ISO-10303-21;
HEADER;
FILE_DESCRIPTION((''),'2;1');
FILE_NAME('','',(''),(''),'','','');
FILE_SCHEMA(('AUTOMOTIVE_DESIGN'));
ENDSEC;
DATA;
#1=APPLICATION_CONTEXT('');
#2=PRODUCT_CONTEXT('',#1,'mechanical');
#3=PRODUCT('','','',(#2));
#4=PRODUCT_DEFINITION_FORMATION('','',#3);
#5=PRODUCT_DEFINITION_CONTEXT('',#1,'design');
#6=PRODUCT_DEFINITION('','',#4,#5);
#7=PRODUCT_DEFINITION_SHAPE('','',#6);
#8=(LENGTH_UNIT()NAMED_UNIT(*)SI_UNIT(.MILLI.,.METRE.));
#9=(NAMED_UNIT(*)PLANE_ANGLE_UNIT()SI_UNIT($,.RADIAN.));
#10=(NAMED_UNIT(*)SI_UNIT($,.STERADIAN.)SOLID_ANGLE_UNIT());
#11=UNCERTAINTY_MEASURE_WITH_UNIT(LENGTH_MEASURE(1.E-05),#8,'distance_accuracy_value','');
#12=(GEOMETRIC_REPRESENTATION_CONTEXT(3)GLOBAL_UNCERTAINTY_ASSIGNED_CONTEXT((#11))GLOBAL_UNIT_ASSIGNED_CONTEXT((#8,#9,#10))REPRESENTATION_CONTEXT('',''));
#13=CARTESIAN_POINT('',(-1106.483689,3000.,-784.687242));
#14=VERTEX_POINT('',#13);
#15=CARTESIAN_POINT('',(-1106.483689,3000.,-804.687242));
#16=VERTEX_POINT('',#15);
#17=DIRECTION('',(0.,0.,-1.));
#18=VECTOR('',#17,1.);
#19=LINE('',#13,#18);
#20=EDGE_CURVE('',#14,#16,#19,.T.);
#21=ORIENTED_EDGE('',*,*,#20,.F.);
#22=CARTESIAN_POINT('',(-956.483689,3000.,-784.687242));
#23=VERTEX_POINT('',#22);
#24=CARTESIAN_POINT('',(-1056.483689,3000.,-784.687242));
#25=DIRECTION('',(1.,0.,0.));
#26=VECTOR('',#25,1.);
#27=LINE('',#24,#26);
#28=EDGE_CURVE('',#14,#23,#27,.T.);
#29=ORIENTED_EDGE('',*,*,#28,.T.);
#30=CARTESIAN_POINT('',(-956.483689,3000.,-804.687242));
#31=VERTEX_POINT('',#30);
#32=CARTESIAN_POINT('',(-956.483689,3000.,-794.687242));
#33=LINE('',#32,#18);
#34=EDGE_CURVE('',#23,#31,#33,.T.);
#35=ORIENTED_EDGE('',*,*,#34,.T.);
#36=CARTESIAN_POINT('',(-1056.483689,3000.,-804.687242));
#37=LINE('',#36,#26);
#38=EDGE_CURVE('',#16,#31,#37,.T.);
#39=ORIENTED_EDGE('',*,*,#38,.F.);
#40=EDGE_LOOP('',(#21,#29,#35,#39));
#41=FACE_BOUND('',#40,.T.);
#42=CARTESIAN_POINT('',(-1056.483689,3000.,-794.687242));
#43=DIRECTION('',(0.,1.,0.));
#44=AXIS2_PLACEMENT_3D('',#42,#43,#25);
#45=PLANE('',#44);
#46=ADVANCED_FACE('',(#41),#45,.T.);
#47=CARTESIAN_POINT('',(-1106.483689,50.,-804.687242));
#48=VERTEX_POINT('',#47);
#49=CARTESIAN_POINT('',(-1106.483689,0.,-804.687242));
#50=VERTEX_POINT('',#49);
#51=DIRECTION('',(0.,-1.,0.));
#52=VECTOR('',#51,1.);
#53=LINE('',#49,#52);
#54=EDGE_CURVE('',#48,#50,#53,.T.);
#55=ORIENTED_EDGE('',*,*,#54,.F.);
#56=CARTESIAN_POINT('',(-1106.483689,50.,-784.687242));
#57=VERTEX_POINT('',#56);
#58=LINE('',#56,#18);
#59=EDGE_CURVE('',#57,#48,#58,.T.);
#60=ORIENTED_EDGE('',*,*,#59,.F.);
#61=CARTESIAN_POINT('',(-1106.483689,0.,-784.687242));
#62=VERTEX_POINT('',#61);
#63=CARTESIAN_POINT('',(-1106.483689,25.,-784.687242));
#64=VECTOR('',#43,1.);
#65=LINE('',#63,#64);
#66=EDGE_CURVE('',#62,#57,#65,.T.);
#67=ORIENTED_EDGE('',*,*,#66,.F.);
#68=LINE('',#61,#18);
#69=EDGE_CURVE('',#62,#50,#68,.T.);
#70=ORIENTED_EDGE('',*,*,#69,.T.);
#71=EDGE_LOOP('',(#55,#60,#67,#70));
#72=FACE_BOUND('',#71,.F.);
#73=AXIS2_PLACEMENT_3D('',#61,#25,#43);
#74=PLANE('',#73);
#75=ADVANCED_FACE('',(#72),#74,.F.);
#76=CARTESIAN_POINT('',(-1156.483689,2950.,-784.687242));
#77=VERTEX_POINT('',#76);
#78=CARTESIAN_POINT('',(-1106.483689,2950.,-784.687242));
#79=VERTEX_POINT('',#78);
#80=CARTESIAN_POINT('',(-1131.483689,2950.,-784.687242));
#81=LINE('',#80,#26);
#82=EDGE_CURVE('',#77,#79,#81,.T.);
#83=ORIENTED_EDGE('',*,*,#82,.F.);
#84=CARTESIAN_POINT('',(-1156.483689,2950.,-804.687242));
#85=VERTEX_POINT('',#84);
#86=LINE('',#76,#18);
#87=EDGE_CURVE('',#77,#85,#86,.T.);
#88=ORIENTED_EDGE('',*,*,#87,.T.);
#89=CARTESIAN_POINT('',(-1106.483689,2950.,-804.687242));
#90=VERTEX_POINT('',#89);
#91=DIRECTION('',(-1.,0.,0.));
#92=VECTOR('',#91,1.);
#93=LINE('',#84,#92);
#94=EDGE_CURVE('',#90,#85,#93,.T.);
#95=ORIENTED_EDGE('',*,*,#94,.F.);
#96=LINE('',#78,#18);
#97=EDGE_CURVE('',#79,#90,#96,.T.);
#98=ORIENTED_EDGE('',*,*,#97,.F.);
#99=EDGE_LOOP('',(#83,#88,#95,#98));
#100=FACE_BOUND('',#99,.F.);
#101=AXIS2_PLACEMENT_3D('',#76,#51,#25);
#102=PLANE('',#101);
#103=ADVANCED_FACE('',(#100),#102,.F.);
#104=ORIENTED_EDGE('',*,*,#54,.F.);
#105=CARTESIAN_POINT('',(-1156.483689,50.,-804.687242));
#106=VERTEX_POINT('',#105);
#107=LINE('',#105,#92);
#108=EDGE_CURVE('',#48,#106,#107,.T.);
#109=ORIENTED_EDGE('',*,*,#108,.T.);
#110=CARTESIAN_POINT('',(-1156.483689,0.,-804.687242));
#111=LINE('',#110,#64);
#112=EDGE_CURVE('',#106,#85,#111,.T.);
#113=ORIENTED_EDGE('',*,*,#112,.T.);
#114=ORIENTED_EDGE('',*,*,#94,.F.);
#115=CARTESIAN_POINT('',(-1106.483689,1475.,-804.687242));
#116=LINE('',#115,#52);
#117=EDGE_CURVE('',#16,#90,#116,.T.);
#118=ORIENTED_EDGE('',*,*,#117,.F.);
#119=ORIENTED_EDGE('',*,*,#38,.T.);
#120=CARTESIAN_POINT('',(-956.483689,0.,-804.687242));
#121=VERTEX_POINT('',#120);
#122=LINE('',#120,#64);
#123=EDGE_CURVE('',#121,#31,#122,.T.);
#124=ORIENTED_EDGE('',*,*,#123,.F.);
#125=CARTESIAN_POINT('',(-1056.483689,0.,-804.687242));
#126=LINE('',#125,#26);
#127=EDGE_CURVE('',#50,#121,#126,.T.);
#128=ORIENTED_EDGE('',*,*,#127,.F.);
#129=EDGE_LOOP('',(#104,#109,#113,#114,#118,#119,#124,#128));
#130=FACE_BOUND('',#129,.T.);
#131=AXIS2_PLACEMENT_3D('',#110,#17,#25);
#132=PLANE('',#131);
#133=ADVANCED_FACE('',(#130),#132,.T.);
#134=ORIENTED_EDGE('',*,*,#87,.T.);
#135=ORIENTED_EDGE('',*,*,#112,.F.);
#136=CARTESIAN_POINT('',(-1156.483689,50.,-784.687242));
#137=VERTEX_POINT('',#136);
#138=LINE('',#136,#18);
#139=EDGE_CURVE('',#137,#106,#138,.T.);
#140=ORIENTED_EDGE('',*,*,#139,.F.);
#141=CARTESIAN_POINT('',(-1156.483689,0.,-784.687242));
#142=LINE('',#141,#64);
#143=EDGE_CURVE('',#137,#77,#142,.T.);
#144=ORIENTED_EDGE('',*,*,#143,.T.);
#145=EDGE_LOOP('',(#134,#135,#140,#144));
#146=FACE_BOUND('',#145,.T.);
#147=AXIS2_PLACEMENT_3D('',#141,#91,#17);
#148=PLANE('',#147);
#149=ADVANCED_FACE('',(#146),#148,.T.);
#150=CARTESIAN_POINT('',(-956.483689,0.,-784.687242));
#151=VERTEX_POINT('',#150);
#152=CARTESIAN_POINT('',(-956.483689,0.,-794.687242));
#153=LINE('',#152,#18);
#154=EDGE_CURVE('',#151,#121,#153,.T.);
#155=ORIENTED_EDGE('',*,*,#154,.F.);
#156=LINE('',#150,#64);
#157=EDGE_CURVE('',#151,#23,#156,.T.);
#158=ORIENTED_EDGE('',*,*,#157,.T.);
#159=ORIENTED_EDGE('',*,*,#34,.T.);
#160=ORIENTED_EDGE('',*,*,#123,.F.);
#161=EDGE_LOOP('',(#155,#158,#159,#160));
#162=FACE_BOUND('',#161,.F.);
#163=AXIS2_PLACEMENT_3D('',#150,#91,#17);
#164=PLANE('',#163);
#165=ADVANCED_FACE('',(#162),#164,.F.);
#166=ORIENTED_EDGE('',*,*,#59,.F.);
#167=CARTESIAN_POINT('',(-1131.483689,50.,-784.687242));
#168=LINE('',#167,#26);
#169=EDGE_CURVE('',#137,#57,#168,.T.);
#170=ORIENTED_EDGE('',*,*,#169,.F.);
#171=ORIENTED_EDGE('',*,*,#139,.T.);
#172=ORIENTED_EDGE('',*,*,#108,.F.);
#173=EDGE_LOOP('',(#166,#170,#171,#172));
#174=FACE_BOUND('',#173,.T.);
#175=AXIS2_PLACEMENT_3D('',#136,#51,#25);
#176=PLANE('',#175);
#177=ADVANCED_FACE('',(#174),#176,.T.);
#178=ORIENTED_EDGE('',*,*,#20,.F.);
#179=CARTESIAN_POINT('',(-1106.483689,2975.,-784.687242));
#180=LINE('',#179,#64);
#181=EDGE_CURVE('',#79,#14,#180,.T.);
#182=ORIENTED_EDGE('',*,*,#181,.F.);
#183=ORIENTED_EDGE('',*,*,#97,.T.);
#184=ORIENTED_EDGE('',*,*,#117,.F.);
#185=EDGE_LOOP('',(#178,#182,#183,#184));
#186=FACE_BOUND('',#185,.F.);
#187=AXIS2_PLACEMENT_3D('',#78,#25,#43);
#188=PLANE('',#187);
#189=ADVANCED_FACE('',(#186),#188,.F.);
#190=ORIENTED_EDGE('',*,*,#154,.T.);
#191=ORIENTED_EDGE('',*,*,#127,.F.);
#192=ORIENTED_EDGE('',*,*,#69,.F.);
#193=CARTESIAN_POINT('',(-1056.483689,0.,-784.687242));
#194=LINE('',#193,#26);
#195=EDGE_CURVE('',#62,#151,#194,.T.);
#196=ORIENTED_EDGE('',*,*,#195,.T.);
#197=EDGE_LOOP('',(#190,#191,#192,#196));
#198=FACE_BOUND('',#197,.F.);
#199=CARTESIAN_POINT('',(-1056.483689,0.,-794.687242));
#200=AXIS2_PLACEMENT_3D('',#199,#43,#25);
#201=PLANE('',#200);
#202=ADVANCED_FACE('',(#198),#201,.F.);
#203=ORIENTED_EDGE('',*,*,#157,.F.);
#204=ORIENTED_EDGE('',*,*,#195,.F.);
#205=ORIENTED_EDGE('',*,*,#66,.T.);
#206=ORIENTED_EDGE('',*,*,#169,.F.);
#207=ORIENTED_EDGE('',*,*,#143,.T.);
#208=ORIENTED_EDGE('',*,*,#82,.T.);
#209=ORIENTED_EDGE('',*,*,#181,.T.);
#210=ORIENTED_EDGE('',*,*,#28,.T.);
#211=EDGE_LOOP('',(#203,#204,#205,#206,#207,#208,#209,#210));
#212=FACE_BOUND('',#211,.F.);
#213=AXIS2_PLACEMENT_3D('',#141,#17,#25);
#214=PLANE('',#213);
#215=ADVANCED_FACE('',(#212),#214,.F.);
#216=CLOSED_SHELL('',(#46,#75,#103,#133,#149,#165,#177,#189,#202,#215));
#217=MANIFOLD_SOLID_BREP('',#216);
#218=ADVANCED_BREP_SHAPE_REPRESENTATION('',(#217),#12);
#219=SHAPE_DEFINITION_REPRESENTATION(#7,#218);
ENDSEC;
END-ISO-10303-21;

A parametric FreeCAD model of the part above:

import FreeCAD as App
import Part
import Sketcher

V = App.Vector

doc = App.newDocument("Part")
body = doc.addObject("PartDesign::Body", "Body")

# Sketch on XZ plane
sketch1 = body.newObject("Sketcher::SketchObject", "Sketch")
sketch1.AttachmentSupport = (doc.getObject("XZ_Plane"), [""])
sketch1.MapMode = "FlatFace"
sketch1.addGeometry(Part.LineSegment(V(-1156, -805, 0), V(-1156, -785, 0)), False)
sketch1.addGeometry(Part.LineSegment(V(-1156, -785, 0), V(-956, -785, 0)), False)
sketch1.addGeometry(Part.LineSegment(V(-956, -785, 0), V(-956, -805, 0)), False)
sketch1.addGeometry(Part.LineSegment(V(-956, -805, 0), V(-1156, -805, 0)), False)
sketch1.addConstraint(Sketcher.Constraint("Coincident", 0, 2, 1, 1))
sketch1.addConstraint(Sketcher.Constraint("Coincident", 1, 2, 2, 1))
sketch1.addConstraint(Sketcher.Constraint("Coincident", 2, 2, 3, 1))
sketch1.addConstraint(Sketcher.Constraint("Coincident", 3, 2, 0, 1))
sketch1.addConstraint(Sketcher.Constraint("Vertical", 0))
sketch1.addConstraint(Sketcher.Constraint("Horizontal", 1))
sketch1.addConstraint(Sketcher.Constraint("Vertical", 2))
sketch1.addConstraint(Sketcher.Constraint("Horizontal", 3))
sketch1.addConstraint(Sketcher.Constraint("DistanceX", 1, 1, 1, 2, 200.0))
sketch1.addConstraint(Sketcher.Constraint("DistanceY", 0, 1, 0, 2, 20.0))
sketch1.addConstraint(Sketcher.Constraint("DistanceX", 0, 2, -1, 1, 1156.483689))
sketch1.addConstraint(Sketcher.Constraint("DistanceY", 0, 2, -1, 1, 784.687242))
pad1 = body.newObject("PartDesign::Pad", "Pad")
pad1.Profile = sketch1
pad1.Length = 3000
pad1.Reversed = True

# Sketch on XY plane
sketch2 = body.newObject("Sketcher::SketchObject", "Sketch001")
sketch2.AttachmentSupport = (doc.getObject("XY_Plane"), [""])
sketch2.MapMode = "FlatFace"
sketch2.AttachmentOffset = App.Placement(V(0, 0, -784.687242), App.Rotation())
sketch2.addGeometry(Part.LineSegment(V(-1156, 50, 0), V(-1156, 0, 0)), False)
sketch2.addGeometry(Part.LineSegment(V(-1156, 0, 0), V(-1106, 0, 0)), False)
sketch2.addGeometry(Part.LineSegment(V(-1106, 0, 0), V(-1106, 50, 0)), False)
sketch2.addGeometry(Part.LineSegment(V(-1106, 50, 0), V(-1156, 50, 0)), False)
sketch2.addConstraint(Sketcher.Constraint("Coincident", 0, 2, 1, 1))
sketch2.addConstraint(Sketcher.Constraint("Coincident", 1, 2, 2, 1))
sketch2.addConstraint(Sketcher.Constraint("Coincident", 2, 2, 3, 1))
sketch2.addConstraint(Sketcher.Constraint("Coincident", 3, 2, 0, 1))
sketch2.addConstraint(Sketcher.Constraint("Vertical", 0))
sketch2.addConstraint(Sketcher.Constraint("Horizontal", 1))
sketch2.addConstraint(Sketcher.Constraint("Vertical", 2))
sketch2.addConstraint(Sketcher.Constraint("Horizontal", 3))
sketch2.addConstraint(Sketcher.Constraint("PointOnObject", 0, 2, -1))
sketch2.addConstraint(Sketcher.Constraint("Equal", 3, 0))
sketch2.addConstraint(Sketcher.Constraint("DistanceX", 1, 1, 1, 2, 50.0))
sketch2.addConstraint(Sketcher.Constraint("DistanceX", 0, 2, -1, 1, 1156.483689))
pocket1 = body.newObject("PartDesign::Pocket", "Pocket")
pocket1.Profile = sketch2
pocket1.Type = "ThroughAll"

# Sketch on XY plane
sketch3 = body.newObject("Sketcher::SketchObject", "Sketch002")
sketch3.AttachmentSupport = (doc.getObject("XY_Plane"), [""])
sketch3.MapMode = "FlatFace"
sketch3.AttachmentOffset = App.Placement(V(0, 0, -784.687242), App.Rotation())
sketch3.addGeometry(Part.LineSegment(V(-1156, 3000, 0), V(-1156, 2950, 0)), False)
sketch3.addGeometry(Part.LineSegment(V(-1156, 2950, 0), V(-1106, 2950, 0)), False)
sketch3.addGeometry(Part.LineSegment(V(-1106, 2950, 0), V(-1106, 3000, 0)), False)
sketch3.addGeometry(Part.LineSegment(V(-1106, 3000, 0), V(-1156, 3000, 0)), False)
sketch3.addConstraint(Sketcher.Constraint("Coincident", 0, 2, 1, 1))
sketch3.addConstraint(Sketcher.Constraint("Coincident", 1, 2, 2, 1))
sketch3.addConstraint(Sketcher.Constraint("Coincident", 2, 2, 3, 1))
sketch3.addConstraint(Sketcher.Constraint("Coincident", 3, 2, 0, 1))
sketch3.addConstraint(Sketcher.Constraint("Vertical", 0))
sketch3.addConstraint(Sketcher.Constraint("Horizontal", 1))
sketch3.addConstraint(Sketcher.Constraint("Vertical", 2))
sketch3.addConstraint(Sketcher.Constraint("Horizontal", 3))
sketch3.addConstraint(Sketcher.Constraint("Equal", 3, 0))
sketch3.addConstraint(Sketcher.Constraint("DistanceX", 1, 1, 1, 2, 50.0))
sketch3.addConstraint(Sketcher.Constraint("DistanceY", -1, 1, 0, 2, 2950.0))
sketch3.addConstraint(Sketcher.Constraint("DistanceX", 0, 2, -1, 1, 1156.483689))
pocket2 = body.newObject("PartDesign::Pocket", "Pocket001")
pocket2.Profile = sketch3
pocket2.Type = "ThroughAll"

doc.recompute()
